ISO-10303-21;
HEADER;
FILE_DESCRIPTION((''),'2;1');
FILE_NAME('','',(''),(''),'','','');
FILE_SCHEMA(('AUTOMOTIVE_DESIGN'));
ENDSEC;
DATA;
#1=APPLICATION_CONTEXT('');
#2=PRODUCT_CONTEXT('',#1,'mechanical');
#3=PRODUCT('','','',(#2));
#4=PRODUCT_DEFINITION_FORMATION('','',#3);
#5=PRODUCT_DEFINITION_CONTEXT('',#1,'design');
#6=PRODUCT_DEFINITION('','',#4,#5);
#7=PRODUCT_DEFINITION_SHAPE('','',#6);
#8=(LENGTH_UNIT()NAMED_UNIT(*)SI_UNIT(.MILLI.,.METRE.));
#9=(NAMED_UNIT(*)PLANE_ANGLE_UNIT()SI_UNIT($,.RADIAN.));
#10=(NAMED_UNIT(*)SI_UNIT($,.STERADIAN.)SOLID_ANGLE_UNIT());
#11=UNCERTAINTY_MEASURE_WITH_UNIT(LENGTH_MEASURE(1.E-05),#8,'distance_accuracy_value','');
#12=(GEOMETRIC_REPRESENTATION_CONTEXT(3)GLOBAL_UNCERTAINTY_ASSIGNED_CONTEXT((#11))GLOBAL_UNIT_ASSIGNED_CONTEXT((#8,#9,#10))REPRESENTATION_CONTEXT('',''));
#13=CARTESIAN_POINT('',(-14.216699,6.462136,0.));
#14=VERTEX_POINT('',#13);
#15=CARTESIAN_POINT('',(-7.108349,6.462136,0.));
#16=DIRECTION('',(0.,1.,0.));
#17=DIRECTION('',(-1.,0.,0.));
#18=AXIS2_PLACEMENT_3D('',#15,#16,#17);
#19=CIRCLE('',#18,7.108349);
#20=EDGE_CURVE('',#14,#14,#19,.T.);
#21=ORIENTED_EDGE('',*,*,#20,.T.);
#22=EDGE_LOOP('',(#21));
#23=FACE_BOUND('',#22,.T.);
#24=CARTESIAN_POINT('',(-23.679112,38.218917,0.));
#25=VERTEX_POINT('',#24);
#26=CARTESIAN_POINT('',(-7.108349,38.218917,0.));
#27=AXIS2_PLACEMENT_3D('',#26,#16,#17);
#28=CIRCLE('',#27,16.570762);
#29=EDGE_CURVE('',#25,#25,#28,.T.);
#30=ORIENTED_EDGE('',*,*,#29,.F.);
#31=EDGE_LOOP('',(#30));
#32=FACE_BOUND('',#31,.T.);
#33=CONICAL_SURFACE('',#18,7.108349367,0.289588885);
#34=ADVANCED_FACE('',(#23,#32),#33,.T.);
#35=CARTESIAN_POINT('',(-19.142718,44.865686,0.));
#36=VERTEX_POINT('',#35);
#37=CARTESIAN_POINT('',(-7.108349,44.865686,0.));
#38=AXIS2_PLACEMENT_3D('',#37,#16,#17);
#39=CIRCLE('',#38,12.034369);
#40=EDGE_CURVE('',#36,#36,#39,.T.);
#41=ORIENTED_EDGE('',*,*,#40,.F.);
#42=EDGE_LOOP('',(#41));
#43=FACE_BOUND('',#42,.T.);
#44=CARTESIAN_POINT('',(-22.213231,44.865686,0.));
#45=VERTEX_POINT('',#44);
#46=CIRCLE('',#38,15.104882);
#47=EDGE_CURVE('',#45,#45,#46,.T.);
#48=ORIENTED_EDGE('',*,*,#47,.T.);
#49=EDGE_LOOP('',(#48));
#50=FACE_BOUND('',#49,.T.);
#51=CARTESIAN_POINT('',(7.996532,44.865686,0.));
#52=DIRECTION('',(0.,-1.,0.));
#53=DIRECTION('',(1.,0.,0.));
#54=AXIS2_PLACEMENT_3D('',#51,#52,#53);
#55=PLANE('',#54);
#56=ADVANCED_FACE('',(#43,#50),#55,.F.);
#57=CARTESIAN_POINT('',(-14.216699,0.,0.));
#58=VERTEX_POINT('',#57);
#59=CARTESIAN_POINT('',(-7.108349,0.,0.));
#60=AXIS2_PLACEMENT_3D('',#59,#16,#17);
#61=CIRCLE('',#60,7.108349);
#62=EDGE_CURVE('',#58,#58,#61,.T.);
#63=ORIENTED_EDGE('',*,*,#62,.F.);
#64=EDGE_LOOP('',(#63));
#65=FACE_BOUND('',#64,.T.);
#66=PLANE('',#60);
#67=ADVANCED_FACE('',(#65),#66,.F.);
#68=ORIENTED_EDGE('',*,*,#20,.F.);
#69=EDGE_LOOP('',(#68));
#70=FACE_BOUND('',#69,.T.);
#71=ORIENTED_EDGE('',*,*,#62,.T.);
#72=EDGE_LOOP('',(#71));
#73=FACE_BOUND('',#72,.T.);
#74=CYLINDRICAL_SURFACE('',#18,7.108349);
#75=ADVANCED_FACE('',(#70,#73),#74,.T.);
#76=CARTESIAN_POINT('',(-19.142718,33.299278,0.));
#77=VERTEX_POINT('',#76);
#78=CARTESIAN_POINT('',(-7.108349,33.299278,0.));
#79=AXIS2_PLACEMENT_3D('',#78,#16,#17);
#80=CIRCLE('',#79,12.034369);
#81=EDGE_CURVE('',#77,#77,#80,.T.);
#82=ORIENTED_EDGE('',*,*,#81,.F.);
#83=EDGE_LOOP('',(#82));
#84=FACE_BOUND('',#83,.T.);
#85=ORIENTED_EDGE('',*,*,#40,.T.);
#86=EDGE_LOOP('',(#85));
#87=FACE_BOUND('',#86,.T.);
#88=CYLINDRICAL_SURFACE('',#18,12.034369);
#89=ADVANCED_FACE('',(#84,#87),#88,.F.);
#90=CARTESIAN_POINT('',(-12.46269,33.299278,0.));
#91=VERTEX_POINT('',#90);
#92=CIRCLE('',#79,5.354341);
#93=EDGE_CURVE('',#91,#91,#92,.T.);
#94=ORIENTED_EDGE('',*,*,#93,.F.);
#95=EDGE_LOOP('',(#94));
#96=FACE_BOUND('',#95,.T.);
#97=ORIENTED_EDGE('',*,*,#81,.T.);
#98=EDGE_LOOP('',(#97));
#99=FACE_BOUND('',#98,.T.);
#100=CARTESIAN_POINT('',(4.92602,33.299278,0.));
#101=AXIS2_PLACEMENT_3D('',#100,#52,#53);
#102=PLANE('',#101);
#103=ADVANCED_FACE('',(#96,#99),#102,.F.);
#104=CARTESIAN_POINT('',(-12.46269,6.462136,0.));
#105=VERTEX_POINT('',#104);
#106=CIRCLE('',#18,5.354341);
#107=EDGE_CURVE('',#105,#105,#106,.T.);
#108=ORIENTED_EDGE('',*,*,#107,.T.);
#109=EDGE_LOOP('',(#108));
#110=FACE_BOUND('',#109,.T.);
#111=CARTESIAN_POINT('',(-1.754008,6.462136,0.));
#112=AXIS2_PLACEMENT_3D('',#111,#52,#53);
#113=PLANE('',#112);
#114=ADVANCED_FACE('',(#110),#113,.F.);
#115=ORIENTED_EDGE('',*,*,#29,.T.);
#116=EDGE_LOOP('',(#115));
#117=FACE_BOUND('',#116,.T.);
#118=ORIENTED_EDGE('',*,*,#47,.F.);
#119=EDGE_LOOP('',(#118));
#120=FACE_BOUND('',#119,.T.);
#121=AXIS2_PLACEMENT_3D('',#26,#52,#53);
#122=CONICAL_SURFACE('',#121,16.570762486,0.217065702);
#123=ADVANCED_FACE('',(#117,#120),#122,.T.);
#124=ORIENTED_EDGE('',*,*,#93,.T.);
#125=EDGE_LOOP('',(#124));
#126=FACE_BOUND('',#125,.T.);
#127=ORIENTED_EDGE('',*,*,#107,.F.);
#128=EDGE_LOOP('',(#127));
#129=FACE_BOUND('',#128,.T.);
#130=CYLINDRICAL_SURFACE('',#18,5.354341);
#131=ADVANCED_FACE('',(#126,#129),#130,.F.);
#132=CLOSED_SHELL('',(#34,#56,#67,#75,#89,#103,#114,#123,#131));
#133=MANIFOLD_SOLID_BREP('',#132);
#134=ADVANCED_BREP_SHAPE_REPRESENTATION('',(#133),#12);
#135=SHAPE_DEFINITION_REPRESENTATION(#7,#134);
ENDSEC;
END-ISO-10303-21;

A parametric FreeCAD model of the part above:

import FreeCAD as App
import Part
import Sketcher
Q = App.Units.Quantity

doc = App.newDocument("Part")
body = doc.addObject("PartDesign::Body", "Body")

# Sketch on XY plane
sketch1 = body.newObject("Sketcher::SketchObject", "Sketch")
sketch1.AttachmentSupport = (doc.getObject("XY_Plane"), [""])
sketch1.MapMode = "FlatFace"
sketch1.addGeometry(Part.LineSegment(App.Vector(0, 0, 0), App.Vector(0, 6.5, 0)), False)
sketch1.addGeometry(Part.LineSegment(App.Vector(0, 6.5, 0), App.Vector(9.5, 38.2, 0)), False)
sketch1.addGeometry(Part.LineSegment(App.Vector(9.5, 38.2, 0), App.Vector(8, 44.9, 0)), False)
sketch1.addGeometry(Part.LineSegment(App.Vector(8, 44.9, 0), App.Vector(4.9, 44.9, 0)), False)
sketch1.addGeometry(Part.LineSegment(App.Vector(4.9, 44.9, 0), App.Vector(4.9, 33.3, 0)), False)
sketch1.addGeometry(Part.LineSegment(App.Vector(4.9, 33.3, 0), App.Vector(-1.8, 33.3, 0)), False)
sketch1.addGeometry(Part.LineSegment(App.Vector(-1.8, 33.3, 0), App.Vector(-1.8, 6.5, 0)), False)
sketch1.addGeometry(Part.LineSegment(App.Vector(-1.8, 6.5, 0), App.Vector(-7.1, 6.5, 0)), False)
sketch1.addGeometry(Part.LineSegment(App.Vector(-7.1, 6.5, 0), App.Vector(-7.1, 0, 0)), False)
sketch1.addGeometry(Part.LineSegment(App.Vector(-7.1, 0, 0), App.Vector(0, 0, 0)), False)
sketch1.addGeometry(Part.LineSegment(App.Vector(-7.1, 44.9, 0), App.Vector(-7.1, 0, 0)), True)  # axis
sketch1.addConstraint(Sketcher.Constraint("Coincident", 0, 2, 1, 1))
sketch1.addConstraint(Sketcher.Constraint("Coincident", 1, 2, 2, 1))
sketch1.addConstraint(Sketcher.Constraint("Coincident", 2, 2, 3, 1))
sketch1.addConstraint(Sketcher.Constraint("Coincident", 3, 2, 4, 1))
sketch1.addConstraint(Sketcher.Constraint("Coincident", 4, 2, 5, 1))
sketch1.addConstraint(Sketcher.Constraint("Coincident", 5, 2, 6, 1))
sketch1.addConstraint(Sketcher.Constraint("Coincident", 6, 2, 7, 1))
sketch1.addConstraint(Sketcher.Constraint("Coincident", 7, 2, 8, 1))
sketch1.addConstraint(Sketcher.Constraint("Coincident", 8, 2, 9, 1))
sketch1.addConstraint(Sketcher.Constraint("Coincident", 9, 2, 0, 1))
sketch1.addConstraint(Sketcher.Constraint("Vertical", 0))
sketch1.addConstraint(Sketcher.Constraint("Horizontal", 3))
sketch1.addConstraint(Sketcher.Constraint("Vertical", 4))
sketch1.addConstraint(Sketcher.Constraint("Horizontal", 5))
sketch1.addConstraint(Sketcher.Constraint("Vertical", 6))
sketch1.addConstraint(Sketcher.Constraint("Horizontal", 7))
sketch1.addConstraint(Sketcher.Constraint("Vertical", 8))
sketch1.addConstraint(Sketcher.Constraint("Horizontal", 9))
sketch1.addConstraint(Sketcher.Constraint("Vertical", 10))
sketch1.addConstraint(Sketcher.Constraint("Coincident", 9, 2, -1, 1))
sketch1.addConstraint(Sketcher.Constraint("Coincident", 10, 2, 8, 2))
sketch1.addConstraint(Sketcher.Constraint("Horizontal", 0, 2, 6, 2))
sketch1.addConstraint(Sketcher.Constraint("Horizontal", 3, 2, 10, 1))
sketch1.addConstraint(Sketcher.Constraint("DistanceX", 7, 2, 7, 1, Q("5.354341 mm")))
sketch1.addConstraint(Sketcher.Constraint("DistanceX", 9, 1, 9, 2, Q("7.108349 mm")))
sketch1.addConstraint(Sketcher.Constraint("DistanceX", 3, 2, 3, 1, Q("3.070513 mm")))
sketch1.addConstraint(Sketcher.Constraint("DistanceX", 5, 2, 5, 1, Q("6.680028 mm")))
sketch1.addConstraint(Sketcher.Constraint("DistanceY", 0, 1, 0, 2, Q("6.462136 mm")))
sketch1.addConstraint(Sketcher.Constraint("DistanceY", 4, 2, 4, 1, Q("11.566408 mm")))
sketch1.addConstraint(Sketcher.Constraint("DistanceY", 6, 2, 6, 1, Q("26.837142 mm")))
sketch1.addConstraint(Sketcher.Constraint("DistanceY", 0, 2, 1, 2, Q("31.756782 mm")))
sketch1.addConstraint(Sketcher.Constraint("DistanceX", 2, 2, 1, 2, Q("1.465881 mm")))
revolution = body.newObject("PartDesign::Revolution", "Revolution")
revolution.Profile = sketch1
revolution.ReferenceAxis = (sketch1, ["Axis0"])
revolution.Angle = 360

doc.recompute()
